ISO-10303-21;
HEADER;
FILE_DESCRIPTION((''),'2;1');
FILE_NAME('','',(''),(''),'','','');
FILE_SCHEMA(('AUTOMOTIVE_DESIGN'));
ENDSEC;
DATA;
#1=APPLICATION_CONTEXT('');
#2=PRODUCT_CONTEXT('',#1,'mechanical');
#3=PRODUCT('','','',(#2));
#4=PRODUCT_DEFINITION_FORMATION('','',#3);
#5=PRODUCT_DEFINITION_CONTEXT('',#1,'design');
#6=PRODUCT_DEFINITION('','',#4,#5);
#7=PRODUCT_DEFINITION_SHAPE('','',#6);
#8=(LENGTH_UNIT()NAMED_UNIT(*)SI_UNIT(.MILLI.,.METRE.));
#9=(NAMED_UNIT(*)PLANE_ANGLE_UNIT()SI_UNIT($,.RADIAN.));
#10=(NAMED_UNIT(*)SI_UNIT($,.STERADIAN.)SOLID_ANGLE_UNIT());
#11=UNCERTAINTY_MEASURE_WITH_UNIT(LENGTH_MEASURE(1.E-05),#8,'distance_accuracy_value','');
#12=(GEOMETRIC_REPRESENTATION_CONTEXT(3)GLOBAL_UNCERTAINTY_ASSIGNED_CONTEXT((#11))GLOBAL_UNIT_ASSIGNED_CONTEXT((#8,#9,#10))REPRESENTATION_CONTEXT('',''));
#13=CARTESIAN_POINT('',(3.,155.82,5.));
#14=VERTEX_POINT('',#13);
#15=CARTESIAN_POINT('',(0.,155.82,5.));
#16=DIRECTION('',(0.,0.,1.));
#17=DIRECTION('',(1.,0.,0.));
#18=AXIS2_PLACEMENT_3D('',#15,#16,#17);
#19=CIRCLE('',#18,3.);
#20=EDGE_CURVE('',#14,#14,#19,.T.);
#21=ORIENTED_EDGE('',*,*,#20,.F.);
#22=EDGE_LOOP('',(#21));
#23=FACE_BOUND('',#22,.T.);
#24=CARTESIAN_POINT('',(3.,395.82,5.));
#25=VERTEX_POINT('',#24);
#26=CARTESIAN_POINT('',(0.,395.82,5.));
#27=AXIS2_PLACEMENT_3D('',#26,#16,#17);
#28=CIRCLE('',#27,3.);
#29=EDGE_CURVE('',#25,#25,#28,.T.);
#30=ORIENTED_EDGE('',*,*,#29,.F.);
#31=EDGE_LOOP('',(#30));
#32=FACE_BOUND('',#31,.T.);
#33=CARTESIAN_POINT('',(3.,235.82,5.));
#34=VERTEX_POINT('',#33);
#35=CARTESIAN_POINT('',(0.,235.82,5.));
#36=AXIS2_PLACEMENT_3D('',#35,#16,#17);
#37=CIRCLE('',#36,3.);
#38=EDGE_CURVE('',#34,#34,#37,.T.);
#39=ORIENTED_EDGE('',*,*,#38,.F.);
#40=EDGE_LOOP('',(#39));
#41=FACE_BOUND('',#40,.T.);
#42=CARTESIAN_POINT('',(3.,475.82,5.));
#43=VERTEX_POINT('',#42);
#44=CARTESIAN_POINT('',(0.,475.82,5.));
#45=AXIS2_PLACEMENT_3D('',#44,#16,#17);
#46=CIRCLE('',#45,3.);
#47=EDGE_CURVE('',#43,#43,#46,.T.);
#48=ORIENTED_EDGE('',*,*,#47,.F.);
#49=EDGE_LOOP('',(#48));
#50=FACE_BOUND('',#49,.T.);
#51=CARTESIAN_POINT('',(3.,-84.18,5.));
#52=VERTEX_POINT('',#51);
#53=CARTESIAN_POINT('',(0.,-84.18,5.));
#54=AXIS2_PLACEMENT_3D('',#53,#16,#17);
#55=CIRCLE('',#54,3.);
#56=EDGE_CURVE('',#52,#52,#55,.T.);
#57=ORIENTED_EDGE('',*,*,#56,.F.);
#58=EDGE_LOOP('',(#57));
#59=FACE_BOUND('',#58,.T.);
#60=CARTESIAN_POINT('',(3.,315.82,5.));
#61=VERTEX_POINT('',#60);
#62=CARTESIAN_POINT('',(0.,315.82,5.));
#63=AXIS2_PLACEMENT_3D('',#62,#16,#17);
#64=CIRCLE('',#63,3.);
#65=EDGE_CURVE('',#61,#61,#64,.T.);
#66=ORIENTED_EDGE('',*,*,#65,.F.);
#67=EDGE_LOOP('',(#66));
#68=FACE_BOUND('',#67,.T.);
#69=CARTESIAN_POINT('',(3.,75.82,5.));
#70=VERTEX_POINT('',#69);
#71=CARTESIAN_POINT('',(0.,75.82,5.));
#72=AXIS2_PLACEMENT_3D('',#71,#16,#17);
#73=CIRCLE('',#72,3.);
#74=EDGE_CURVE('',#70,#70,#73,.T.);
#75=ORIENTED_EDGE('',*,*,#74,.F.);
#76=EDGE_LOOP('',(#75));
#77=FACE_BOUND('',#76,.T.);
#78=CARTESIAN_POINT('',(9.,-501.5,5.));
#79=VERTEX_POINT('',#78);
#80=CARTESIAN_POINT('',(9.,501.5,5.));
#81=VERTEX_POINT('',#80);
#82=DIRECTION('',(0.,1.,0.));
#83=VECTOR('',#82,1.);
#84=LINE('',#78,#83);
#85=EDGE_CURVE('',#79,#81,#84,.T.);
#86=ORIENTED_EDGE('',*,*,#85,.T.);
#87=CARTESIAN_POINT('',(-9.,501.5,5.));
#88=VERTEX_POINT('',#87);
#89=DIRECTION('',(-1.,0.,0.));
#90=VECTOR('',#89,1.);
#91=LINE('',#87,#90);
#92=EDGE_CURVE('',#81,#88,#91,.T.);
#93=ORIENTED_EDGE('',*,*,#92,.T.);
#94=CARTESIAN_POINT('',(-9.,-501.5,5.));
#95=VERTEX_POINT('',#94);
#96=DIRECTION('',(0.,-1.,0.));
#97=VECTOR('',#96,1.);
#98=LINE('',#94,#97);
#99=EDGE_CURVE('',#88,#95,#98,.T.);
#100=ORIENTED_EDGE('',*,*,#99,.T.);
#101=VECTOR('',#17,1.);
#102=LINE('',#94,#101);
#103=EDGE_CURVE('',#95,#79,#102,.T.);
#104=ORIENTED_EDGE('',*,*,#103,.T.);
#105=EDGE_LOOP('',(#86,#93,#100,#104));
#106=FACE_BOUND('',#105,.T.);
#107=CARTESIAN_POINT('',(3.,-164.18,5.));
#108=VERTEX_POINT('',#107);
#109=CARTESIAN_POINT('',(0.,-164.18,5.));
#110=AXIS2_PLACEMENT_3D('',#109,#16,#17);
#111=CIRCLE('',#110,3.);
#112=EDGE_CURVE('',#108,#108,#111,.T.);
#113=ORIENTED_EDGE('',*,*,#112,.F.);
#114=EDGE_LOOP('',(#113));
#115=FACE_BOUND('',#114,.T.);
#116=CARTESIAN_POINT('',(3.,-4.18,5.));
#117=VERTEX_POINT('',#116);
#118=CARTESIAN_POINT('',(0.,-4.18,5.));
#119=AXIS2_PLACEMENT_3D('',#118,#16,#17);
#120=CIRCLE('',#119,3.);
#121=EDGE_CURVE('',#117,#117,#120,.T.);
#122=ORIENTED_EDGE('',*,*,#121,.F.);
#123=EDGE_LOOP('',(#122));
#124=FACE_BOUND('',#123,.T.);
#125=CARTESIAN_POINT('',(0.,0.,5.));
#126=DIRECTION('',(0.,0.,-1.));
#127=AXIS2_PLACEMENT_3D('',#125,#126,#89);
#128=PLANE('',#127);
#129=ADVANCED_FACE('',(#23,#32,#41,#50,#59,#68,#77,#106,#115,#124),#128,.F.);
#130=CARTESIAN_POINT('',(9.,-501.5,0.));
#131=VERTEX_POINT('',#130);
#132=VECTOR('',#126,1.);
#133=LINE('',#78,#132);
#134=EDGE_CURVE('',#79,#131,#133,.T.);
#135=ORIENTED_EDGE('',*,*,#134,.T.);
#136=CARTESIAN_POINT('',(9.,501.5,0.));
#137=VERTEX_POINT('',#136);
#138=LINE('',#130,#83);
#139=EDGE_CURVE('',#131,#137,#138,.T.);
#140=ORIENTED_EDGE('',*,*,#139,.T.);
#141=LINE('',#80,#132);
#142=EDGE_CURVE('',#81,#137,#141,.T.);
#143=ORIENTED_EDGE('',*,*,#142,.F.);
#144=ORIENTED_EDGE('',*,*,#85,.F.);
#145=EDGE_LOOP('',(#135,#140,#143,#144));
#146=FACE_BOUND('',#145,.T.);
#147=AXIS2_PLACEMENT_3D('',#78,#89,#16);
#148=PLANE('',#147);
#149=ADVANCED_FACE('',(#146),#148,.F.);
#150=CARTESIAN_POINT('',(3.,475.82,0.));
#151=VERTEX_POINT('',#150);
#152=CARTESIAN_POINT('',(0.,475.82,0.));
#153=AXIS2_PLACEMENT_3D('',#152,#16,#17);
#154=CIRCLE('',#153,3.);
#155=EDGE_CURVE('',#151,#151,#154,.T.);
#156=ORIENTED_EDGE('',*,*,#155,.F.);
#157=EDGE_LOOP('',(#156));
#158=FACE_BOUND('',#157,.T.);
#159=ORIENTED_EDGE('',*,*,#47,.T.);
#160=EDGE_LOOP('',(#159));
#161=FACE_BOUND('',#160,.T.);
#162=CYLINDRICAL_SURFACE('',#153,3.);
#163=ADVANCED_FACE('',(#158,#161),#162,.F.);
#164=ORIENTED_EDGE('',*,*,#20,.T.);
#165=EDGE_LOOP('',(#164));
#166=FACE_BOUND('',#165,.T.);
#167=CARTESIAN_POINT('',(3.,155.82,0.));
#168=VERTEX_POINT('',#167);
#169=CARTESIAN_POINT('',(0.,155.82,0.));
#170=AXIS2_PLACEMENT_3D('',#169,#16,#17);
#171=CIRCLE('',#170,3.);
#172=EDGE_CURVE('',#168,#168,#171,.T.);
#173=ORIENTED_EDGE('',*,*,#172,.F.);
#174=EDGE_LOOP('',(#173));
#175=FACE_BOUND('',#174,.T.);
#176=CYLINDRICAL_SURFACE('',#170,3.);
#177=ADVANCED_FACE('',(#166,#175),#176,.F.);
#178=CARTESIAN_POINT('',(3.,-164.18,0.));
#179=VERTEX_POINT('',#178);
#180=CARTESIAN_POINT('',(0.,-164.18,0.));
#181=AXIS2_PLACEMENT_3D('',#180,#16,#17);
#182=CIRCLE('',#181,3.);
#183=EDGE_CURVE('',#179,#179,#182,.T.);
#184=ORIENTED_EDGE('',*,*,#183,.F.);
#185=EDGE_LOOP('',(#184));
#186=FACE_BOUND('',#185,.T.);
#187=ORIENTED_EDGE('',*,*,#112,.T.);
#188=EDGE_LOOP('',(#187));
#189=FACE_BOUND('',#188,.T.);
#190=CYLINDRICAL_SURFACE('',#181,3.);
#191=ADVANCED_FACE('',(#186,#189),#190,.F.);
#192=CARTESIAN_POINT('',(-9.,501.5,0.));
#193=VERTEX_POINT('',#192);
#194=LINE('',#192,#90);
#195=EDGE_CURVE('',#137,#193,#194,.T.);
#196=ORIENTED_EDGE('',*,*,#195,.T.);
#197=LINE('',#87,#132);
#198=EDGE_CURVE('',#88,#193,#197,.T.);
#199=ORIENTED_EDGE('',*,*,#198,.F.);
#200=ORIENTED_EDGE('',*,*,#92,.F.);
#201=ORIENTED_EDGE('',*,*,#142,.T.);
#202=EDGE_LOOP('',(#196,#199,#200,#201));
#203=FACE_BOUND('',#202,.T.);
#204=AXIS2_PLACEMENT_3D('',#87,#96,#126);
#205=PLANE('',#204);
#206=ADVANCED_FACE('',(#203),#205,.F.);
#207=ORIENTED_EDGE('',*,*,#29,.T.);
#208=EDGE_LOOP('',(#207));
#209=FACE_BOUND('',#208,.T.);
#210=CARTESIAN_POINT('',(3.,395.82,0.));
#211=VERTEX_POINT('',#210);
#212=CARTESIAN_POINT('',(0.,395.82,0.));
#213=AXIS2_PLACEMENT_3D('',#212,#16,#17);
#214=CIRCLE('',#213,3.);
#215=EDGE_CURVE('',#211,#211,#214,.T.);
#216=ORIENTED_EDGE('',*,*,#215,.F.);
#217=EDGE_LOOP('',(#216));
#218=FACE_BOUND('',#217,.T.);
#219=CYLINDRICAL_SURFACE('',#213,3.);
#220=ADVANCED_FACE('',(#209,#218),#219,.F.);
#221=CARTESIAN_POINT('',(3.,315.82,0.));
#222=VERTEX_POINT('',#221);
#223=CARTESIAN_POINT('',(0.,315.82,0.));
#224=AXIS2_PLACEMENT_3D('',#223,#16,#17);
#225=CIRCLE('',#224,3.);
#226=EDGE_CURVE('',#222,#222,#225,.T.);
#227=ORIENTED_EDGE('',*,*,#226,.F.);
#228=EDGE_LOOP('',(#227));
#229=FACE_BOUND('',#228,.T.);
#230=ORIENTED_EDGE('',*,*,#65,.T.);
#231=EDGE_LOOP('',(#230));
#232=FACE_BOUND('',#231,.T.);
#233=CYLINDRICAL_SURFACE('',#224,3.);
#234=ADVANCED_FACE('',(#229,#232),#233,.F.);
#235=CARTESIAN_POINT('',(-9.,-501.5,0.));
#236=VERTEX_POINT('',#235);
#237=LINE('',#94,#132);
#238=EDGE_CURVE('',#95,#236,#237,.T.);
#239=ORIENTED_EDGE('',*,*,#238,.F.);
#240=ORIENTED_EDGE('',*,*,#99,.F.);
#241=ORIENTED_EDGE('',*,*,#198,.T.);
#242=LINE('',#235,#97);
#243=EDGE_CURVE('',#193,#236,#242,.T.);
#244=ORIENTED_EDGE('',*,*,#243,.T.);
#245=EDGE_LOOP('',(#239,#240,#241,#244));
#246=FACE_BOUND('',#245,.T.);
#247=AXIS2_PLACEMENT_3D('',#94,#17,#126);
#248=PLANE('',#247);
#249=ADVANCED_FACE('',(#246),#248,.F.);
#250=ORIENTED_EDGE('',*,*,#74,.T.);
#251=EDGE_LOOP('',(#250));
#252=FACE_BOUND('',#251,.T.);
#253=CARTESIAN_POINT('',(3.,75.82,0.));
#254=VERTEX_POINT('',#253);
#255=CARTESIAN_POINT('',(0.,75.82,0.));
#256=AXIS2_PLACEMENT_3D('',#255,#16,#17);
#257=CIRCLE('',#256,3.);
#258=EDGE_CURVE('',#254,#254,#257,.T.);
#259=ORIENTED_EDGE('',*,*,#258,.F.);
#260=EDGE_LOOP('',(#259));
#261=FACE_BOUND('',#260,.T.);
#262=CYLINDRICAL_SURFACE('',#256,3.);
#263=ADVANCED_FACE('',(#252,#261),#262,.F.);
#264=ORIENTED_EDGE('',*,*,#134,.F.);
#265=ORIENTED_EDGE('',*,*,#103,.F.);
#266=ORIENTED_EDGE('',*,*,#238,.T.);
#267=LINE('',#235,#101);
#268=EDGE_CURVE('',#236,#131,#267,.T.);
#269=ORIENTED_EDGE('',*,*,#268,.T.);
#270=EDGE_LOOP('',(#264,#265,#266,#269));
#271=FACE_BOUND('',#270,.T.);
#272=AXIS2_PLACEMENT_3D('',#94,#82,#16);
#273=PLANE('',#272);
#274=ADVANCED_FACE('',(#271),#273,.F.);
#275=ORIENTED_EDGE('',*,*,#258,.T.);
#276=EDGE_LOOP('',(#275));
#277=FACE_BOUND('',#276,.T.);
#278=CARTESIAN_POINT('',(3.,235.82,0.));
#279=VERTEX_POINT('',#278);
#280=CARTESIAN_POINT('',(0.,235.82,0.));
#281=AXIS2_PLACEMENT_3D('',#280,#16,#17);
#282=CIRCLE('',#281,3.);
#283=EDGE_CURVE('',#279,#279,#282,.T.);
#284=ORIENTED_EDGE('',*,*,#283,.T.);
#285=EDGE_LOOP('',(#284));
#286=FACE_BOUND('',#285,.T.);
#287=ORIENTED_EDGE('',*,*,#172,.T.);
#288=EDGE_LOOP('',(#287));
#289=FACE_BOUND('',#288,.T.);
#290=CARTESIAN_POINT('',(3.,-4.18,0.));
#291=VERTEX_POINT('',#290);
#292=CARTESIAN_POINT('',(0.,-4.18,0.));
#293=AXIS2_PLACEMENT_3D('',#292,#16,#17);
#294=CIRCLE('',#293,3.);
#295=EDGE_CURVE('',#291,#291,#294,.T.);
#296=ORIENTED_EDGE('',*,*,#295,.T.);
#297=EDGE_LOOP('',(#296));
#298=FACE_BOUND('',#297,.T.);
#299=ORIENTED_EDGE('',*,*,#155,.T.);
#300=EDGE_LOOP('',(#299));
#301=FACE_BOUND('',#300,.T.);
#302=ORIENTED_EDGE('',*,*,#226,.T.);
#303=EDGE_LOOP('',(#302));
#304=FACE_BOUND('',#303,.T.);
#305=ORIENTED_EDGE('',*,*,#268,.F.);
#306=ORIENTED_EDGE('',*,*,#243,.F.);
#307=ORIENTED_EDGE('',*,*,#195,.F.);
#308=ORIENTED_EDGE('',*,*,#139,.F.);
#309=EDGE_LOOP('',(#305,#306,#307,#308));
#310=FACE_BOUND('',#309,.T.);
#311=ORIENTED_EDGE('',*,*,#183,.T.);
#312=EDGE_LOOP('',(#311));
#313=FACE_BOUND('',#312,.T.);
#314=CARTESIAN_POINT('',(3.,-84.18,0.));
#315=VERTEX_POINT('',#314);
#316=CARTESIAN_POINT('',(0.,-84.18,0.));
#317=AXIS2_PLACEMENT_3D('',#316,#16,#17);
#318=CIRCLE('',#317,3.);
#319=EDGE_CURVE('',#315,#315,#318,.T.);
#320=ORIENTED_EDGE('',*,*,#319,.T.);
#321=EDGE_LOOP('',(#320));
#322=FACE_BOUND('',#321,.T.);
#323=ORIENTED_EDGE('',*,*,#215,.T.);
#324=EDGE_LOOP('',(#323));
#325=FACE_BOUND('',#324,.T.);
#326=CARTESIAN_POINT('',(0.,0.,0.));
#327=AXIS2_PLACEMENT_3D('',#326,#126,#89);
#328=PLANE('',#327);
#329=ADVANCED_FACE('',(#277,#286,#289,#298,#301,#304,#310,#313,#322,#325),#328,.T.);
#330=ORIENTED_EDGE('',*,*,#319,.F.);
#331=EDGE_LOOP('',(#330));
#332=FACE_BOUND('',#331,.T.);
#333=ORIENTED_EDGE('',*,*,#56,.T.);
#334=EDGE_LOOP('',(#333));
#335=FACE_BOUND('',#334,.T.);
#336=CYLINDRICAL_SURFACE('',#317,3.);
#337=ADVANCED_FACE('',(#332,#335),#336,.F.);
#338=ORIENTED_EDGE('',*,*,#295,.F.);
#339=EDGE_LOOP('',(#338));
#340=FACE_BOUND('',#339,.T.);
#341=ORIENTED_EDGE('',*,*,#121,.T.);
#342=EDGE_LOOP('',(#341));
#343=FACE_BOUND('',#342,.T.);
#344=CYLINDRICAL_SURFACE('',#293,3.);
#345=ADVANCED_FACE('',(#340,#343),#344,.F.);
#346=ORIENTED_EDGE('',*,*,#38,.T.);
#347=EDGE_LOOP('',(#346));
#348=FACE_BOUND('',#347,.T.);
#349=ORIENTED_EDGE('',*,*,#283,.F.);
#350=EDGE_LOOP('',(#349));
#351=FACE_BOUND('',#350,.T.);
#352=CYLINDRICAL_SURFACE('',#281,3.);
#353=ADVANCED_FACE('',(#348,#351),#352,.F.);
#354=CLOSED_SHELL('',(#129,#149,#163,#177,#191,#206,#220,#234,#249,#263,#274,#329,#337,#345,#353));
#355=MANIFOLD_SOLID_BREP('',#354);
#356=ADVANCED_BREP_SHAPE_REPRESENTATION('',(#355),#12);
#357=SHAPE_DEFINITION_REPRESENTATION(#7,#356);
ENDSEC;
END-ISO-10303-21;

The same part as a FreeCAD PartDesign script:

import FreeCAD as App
import Part
import Sketcher

V = App.Vector
Q = App.Units.Quantity


def add_polygon(sketch, points):
    """Adds a closed chain of lines whose ends are joined by coincident constraints."""
    first, n = sketch.GeometryCount, len(points)
    for a, b in zip(points, points[1:] + points[:1]):
        sketch.addGeometry(Part.LineSegment(App.Vector(*a, 0), App.Vector(*b, 0)), False)
    for i in range(n):
        sketch.addConstraint(Sketcher.Constraint("Coincident", first + i, 2, first + (i + 1) % n, 1))

doc = App.newDocument("Part")
body = doc.addObject("PartDesign::Body", "Body")

# Sketch on XY plane
sketch1 = body.newObject("Sketcher::SketchObject", "Sketch")
sketch1.AttachmentSupport = (doc.getObject("XY_Plane"), [""])
sketch1.MapMode = "FlatFace"
add_polygon(sketch1, [(-9, 502), (-9, -502), (9, -502), (9, 502)])  # lines 0-3
sketch1.addConstraint(Sketcher.Constraint("Vertical", 0))
sketch1.addConstraint(Sketcher.Constraint("Horizontal", 1))
sketch1.addConstraint(Sketcher.Constraint("Vertical", 2))
sketch1.addConstraint(Sketcher.Constraint("Horizontal", 3))
sketch1.addConstraint(Sketcher.Constraint("Symmetric", 0, 2, 2, 2, -1, 1))
sketch1.addConstraint(Sketcher.Constraint("DistanceX", 1, 1, 1, 2, Q("18 mm")))
sketch1.addConstraint(Sketcher.Constraint("DistanceY", 0, 2, 0, 1, Q("1003 mm")))
pad1 = body.newObject("PartDesign::Pad", "Pad")
pad1.Profile = sketch1
pad1.Length = 5

# Sketch on XY plane
sketch2 = body.newObject("Sketcher::SketchObject", "Sketch001")
sketch2.AttachmentSupport = (doc.getObject("XY_Plane"), [""])
sketch2.MapMode = "FlatFace"
sketch2.AttachmentOffset = App.Placement(V(0, 0, 5), App.Rotation())
sketch2.addGeometry(Part.Circle(V(0, 475.8, 0), V(0, 0, 1), 3), False)
sketch2.addConstraint(Sketcher.Constraint("PointOnObject", 0, 3, -2))
sketch2.addConstraint(Sketcher.Constraint("Diameter", 0, Q("6 mm")))
sketch2.addConstraint(Sketcher.Constraint("DistanceY", -1, 1, 0, 3, Q("475.82 mm")))
pocket1 = body.newObject("PartDesign::Pocket", "Pocket")
pocket1.Profile = sketch2
pocket1.Length = 5
doc.recompute()

linearpattern = body.newObject("PartDesign::LinearPattern", "LinearPattern")
linearpattern.Originals = [pocket1]
linearpattern.Direction = (doc.getObject("Y_Axis"), [""])
linearpattern.Mode = "offset"
linearpattern.Offset = 80
linearpattern.Occurrences = 9
linearpattern.Reversed = True
body.Tip = linearpattern

doc.recompute()
